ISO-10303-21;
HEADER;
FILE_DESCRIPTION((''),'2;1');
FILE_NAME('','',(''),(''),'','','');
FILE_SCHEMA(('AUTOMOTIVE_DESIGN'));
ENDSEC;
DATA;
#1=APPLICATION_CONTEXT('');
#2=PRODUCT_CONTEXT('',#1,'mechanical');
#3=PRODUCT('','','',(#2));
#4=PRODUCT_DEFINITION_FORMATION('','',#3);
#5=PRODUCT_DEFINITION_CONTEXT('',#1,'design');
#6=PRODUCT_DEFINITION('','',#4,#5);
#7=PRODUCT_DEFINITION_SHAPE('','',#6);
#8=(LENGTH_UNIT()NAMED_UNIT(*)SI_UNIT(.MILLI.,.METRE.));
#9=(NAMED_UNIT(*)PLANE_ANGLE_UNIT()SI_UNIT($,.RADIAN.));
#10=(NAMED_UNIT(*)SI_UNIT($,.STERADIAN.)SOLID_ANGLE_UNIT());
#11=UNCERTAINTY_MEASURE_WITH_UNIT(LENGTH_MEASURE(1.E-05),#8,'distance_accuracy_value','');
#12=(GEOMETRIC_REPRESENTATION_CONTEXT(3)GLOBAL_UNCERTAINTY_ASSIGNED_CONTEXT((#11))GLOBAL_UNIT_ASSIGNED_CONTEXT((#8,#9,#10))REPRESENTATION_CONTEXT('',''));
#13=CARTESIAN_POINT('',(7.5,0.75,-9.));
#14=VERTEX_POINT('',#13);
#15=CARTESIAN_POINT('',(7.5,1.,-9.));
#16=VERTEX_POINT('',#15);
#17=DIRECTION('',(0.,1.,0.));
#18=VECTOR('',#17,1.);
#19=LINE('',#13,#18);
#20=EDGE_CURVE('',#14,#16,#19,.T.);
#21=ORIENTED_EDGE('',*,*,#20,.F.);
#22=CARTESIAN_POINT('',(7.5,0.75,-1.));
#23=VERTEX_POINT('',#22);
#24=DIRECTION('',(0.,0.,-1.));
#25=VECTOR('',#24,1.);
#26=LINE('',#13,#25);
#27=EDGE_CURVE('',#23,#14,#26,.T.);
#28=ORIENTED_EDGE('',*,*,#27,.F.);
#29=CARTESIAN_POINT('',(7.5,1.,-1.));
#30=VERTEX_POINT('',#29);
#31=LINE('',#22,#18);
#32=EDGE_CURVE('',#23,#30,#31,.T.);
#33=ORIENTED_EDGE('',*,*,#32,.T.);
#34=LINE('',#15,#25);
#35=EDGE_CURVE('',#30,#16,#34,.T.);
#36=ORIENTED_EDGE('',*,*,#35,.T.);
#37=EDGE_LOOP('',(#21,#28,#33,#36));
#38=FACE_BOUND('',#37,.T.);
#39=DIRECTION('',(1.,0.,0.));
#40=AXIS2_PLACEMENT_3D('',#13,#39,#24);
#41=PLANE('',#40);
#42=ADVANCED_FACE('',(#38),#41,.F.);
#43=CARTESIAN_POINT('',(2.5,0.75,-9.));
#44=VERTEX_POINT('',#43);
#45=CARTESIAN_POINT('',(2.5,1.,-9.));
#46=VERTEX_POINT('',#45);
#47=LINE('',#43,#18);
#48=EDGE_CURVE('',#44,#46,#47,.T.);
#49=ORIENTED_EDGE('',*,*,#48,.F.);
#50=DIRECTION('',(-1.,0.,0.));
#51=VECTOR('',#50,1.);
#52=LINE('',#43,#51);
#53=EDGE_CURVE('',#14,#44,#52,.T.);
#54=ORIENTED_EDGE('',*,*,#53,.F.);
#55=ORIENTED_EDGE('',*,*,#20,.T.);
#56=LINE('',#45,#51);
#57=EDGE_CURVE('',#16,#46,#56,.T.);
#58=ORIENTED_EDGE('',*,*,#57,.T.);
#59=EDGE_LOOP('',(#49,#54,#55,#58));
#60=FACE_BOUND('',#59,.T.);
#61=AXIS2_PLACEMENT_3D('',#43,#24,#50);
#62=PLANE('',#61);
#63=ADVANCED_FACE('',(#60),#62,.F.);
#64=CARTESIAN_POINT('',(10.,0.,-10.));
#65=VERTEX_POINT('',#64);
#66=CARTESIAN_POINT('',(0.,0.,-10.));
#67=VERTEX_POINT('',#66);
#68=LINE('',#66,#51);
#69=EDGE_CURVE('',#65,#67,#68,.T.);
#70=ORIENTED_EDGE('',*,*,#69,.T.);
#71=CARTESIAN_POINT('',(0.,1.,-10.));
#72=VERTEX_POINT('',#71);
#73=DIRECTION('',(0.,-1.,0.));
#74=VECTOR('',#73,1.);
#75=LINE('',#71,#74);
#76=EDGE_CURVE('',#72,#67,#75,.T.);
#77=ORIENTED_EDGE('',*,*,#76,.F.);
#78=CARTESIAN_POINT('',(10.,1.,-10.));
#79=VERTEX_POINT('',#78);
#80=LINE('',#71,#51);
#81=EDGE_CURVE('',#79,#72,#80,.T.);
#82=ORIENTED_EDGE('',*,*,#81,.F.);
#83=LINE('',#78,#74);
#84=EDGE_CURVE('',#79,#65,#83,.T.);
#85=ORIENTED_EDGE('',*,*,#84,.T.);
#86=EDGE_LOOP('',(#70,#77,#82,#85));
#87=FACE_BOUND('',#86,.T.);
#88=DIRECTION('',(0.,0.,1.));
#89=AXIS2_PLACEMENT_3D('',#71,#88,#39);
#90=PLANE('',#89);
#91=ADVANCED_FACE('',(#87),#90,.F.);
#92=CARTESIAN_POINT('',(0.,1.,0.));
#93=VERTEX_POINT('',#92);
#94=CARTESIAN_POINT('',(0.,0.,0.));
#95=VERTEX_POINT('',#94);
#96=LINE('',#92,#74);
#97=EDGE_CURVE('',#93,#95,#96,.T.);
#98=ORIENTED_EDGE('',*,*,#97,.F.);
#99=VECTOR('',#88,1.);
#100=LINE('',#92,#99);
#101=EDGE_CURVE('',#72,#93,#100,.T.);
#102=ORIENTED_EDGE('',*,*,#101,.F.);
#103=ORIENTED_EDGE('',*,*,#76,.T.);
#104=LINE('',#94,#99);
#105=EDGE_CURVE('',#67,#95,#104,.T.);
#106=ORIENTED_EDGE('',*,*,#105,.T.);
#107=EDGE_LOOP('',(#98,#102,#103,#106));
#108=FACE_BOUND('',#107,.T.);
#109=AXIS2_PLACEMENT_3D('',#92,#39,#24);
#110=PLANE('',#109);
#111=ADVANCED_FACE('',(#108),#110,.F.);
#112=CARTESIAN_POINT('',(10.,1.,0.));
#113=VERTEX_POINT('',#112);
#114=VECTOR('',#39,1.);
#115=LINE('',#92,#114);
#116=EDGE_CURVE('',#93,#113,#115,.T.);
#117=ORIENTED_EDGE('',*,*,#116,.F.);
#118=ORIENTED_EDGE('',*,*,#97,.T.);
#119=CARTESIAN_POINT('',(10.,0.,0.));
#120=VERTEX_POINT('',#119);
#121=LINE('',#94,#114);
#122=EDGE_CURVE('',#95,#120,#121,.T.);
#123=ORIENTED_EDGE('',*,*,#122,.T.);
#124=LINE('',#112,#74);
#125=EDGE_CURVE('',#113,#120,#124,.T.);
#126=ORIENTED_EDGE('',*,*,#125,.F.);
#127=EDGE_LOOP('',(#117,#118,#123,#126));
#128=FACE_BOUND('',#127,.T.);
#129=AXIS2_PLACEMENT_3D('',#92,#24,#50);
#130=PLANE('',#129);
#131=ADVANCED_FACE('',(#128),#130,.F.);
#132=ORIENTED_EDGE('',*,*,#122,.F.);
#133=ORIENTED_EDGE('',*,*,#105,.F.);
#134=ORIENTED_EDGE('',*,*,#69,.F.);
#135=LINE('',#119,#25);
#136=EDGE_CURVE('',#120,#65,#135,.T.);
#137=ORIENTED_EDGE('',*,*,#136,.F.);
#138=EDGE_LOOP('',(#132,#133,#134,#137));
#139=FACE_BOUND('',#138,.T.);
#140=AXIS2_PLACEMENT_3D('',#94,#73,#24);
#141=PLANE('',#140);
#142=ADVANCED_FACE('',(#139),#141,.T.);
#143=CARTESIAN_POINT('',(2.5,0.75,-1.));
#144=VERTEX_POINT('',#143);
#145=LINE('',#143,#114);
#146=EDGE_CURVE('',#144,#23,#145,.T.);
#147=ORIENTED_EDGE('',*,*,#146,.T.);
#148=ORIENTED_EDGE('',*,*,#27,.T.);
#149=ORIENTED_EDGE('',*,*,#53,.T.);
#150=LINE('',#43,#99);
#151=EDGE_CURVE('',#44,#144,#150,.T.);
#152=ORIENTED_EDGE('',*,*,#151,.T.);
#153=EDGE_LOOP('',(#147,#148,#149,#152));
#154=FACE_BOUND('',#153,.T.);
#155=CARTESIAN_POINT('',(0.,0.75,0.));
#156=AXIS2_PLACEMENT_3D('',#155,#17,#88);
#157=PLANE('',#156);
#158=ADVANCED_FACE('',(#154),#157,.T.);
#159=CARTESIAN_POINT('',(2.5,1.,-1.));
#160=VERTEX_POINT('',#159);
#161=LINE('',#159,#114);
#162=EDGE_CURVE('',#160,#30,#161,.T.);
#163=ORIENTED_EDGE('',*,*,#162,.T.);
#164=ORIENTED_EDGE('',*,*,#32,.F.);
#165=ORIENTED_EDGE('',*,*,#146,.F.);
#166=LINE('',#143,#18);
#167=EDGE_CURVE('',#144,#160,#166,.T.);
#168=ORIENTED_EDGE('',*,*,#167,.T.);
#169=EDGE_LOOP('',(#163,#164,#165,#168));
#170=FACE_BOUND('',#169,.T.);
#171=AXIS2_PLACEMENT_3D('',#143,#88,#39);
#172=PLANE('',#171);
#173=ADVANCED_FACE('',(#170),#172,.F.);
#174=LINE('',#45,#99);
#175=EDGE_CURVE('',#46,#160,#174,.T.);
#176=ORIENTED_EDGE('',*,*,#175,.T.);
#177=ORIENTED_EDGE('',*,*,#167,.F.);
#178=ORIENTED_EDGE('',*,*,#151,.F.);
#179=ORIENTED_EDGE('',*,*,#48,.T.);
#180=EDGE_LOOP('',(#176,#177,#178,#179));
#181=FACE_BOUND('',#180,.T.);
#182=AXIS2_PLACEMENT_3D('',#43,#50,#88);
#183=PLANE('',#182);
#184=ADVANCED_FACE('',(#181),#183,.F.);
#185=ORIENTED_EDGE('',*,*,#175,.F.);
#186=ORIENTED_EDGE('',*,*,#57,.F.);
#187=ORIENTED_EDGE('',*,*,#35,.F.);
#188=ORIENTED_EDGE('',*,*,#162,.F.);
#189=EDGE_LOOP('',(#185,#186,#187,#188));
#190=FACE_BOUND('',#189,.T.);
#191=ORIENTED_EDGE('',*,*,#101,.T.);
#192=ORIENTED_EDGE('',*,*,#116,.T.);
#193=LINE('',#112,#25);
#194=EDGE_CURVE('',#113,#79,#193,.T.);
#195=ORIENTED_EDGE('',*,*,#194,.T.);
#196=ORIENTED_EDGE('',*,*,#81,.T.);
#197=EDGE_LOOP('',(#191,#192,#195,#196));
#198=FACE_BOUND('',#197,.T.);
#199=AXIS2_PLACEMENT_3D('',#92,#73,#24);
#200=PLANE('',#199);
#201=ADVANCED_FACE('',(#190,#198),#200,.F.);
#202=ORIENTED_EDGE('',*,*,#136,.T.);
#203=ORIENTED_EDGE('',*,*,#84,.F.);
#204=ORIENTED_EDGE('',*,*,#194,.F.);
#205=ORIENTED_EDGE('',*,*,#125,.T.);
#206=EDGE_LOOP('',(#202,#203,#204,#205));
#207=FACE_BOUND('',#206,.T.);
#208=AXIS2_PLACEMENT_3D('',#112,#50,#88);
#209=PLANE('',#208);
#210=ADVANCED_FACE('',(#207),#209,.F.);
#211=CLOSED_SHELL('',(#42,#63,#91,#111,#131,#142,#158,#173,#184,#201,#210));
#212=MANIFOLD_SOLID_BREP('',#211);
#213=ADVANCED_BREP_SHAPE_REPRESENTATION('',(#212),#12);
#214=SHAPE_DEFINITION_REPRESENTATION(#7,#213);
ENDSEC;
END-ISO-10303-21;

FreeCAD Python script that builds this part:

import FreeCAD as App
import Part
import Sketcher

V = App.Vector
Q = App.Units.Quantity


def add_polygon(sketch, points):
    """Adds a closed chain of lines whose ends are joined by coincident constraints."""
    first, n = sketch.GeometryCount, len(points)
    for a, b in zip(points, points[1:] + points[:1]):
        sketch.addGeometry(Part.LineSegment(App.Vector(*a, 0), App.Vector(*b, 0)), False)
    for i in range(n):
        sketch.addConstraint(Sketcher.Constraint("Coincident", first + i, 2, first + (i + 1) % n, 1))

doc = App.newDocument("Part")
params = doc.addObject("Spreadsheet::Sheet", "Params")
for row, (alias, value) in enumerate([
    ("sketch1_width", "10 mm"),
    ("pad1_length", "1 mm"),
    ("sketch2_width", "5 mm"),
    ("sketch2_height", "8 mm"),
    ("pocket1_length", "0.25 mm"),
], start=1):
    params.set(f"A{row}", alias)
    params.set(f"B{row}", "=" + value)
    params.setAlias(f"B{row}", alias)

body = doc.addObject("PartDesign::Body", "Body")

sketch1 = doc.addObject("Sketcher::SketchObject", "Sketch")
body.addObject(sketch1)
sketch1.AttachmentSupport = (doc.XZ_Plane, [""])
sketch1.MapMode = "FlatFace"
add_polygon(sketch1, [(0, -10), (0, 0), (10, 0), (10, -10)])
sketch1.addConstraint([
    Sketcher.Constraint("Vertical", 0),
    Sketcher.Constraint("Horizontal", 1),
    Sketcher.Constraint("Vertical", 2),
    Sketcher.Constraint("Horizontal", 3),
    Sketcher.Constraint("Coincident", 0, 2, -1, 1),
    Sketcher.Constraint("Equal", 3, 0),
    Sketcher.Constraint("DistanceX", 1, 1, 1, 2, Q("10 mm")),
])
sketch1.setExpression("Constraints[10]", "Params.sketch1_width")
pad1 = doc.addObject("PartDesign::Pad", "Pad")
body.addObject(pad1)
pad1.Profile = sketch1
pad1.setExpression("Length", "Params.pad1_length")
pad1.Reversed = True

sketch2 = doc.addObject("Sketcher::SketchObject", "Sketch001")
body.addObject(sketch2)
sketch2.AttachmentSupport = (doc.XZ_Plane, [""])
sketch2.MapMode = "FlatFace"
sketch2.AttachmentOffset = App.Placement(V(0, 0, -1), App.Rotation())
add_polygon(sketch2, [(2, -9), (2, -1), (8, -1), (8, -9)])
sketch2.addConstraint([
    Sketcher.Constraint("Vertical", 0),
    Sketcher.Constraint("Horizontal", 1),
    Sketcher.Constraint("Vertical", 2),
    Sketcher.Constraint("Horizontal", 3),
    Sketcher.Constraint("DistanceX", 1, 1, 1, 2, Q("5 mm")),
    Sketcher.Constraint("DistanceY", 0, 1, 0, 2, Q("8 mm")),
    Sketcher.Constraint("DistanceY", 0, 2, -1, 1, Q("1 mm")),
    Sketcher.Constraint("DistanceX", -1, 1, 0, 2, Q("2.5 mm")),
])
sketch2.setExpression("Constraints[8]", "Params.sketch2_width")
sketch2.setExpression("Constraints[9]", "Params.sketch2_height")
pocket1 = doc.addObject("PartDesign::Pocket", "Pocket")
body.addObject(pocket1)
pocket1.Profile = sketch2
pocket1.setExpression("Length", "Params.pocket1_length")
pocket1.Reversed = True

doc.recompute()
